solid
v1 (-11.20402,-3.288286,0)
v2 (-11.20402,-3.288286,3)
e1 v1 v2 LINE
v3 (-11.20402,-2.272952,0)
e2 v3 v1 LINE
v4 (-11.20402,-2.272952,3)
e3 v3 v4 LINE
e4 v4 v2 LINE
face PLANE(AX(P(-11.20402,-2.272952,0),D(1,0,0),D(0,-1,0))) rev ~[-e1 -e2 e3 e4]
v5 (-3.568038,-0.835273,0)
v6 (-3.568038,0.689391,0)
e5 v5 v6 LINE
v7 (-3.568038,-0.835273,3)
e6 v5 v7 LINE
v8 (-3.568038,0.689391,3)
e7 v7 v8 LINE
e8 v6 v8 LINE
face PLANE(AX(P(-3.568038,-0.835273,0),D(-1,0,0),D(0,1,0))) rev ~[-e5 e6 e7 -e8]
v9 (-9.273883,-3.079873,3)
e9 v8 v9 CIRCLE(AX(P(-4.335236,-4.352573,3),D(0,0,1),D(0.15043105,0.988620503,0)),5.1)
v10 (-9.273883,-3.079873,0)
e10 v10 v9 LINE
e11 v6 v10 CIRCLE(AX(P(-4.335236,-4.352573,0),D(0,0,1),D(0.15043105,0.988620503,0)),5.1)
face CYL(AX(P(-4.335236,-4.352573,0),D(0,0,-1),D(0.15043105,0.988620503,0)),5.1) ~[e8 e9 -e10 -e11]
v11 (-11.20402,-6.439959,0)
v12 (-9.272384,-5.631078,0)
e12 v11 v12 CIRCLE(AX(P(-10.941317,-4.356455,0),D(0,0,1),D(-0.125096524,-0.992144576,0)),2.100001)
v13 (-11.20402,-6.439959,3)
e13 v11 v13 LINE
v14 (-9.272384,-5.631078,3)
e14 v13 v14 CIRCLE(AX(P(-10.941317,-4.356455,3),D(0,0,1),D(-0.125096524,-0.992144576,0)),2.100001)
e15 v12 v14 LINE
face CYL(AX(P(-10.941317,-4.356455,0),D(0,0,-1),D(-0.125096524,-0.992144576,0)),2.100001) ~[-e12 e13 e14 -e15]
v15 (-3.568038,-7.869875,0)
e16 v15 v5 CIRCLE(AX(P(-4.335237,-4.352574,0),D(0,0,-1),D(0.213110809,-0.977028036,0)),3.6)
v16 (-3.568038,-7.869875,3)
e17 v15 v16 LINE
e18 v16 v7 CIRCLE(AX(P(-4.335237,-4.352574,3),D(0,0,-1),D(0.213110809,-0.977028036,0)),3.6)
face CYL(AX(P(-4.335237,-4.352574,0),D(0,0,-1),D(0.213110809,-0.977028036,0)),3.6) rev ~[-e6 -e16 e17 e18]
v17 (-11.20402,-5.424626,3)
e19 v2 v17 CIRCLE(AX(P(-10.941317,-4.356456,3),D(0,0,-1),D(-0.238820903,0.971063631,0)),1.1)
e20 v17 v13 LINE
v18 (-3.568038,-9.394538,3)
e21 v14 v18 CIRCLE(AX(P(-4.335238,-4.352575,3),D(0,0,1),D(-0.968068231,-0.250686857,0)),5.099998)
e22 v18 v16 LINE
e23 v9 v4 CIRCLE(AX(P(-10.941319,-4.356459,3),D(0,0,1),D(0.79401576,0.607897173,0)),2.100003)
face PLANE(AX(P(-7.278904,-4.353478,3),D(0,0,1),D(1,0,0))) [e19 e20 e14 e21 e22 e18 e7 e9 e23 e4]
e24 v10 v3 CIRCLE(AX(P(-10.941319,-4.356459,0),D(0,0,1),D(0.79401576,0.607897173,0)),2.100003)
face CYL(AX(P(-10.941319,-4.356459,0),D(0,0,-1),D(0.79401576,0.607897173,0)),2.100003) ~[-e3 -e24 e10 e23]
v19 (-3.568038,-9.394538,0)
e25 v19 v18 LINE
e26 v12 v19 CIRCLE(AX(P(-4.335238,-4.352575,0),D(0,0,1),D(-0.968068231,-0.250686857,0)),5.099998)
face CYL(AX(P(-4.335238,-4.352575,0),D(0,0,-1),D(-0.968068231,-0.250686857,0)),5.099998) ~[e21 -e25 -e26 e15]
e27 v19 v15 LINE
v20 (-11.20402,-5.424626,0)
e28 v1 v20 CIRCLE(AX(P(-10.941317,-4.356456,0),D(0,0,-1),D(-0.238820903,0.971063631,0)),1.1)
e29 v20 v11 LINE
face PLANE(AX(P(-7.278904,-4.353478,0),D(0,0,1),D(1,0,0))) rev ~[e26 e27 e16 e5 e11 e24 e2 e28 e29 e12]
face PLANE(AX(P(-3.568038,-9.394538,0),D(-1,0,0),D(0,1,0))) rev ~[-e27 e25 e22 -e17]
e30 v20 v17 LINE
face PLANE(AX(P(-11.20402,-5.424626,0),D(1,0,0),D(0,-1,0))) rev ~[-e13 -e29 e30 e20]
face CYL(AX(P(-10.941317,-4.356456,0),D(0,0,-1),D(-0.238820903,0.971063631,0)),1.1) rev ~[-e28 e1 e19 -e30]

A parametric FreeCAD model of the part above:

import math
import FreeCAD as App
import Part
import Sketcher
from FreeCAD import Vector

doc = App.newDocument("Part")
body = doc.addObject("PartDesign::Body", "Body")

# Sketch on XY plane
sketch1 = body.newObject("Sketcher::SketchObject", "Sketch")
sketch1.AttachmentSupport = (doc.getObject("XY_Plane"), [""])
sketch1.MapMode = "FlatFace"
sketch1.addGeometry([
    Part.ArcOfCircle(Part.Circle(Vector(-4.3, -4.4, 0), Vector(0, 0, 1), 3.6), math.radians(78), math.radians(282)),  # 0
    Part.LineSegment(Vector(-3.6, -0.8, 0), Vector(-3.6, 0.7, 0)),  # 1
    Part.ArcOfCircle(Part.Circle(Vector(-4.3, -4.4, 0), Vector(0, 0, 1), 5.1), math.radians(81), math.radians(166)),  # 2
    Part.ArcOfCircle(Part.Circle(Vector(-10.9, -4.4, 0), Vector(0, 0, 1), 2.1), math.radians(37), math.radians(97)),  # 3
    Part.LineSegment(Vector(-11.2, -2.3, 0), Vector(-11.2, -3.3, 0)),  # 4
    Part.ArcOfCircle(Part.Circle(Vector(-10.9, -4.4, 0), Vector(0, 0, 1), 1.1), math.radians(-104), math.radians(104)),  # 5
    Part.LineSegment(Vector(-11.2, -5.4, 0), Vector(-11.2, -6.4, 0)),  # 6
    Part.ArcOfCircle(Part.Circle(Vector(-10.9, -4.4, 0), Vector(0, 0, 1), 2.1), math.radians(-97), math.radians(-37)),  # 7
    Part.ArcOfCircle(Part.Circle(Vector(-4.3, -4.4, 0), Vector(0, 0, 1), 5.1), math.radians(-165), math.radians(-81)),  # 8
    Part.LineSegment(Vector(-3.6, -9.4, 0), Vector(-3.6, -7.9, 0)),  # 9
], False)
sketch1.addConstraint([
    Sketcher.Constraint("Coincident", 0, 1, 1, 1),
    Sketcher.Constraint("Coincident", 1, 2, 2, 1),
    Sketcher.Constraint("Coincident", 2, 2, 3, 1),
    Sketcher.Constraint("Coincident", 3, 2, 4, 1),
    Sketcher.Constraint("Coincident", 4, 2, 5, 2),
    Sketcher.Constraint("Coincident", 5, 1, 6, 1),
    Sketcher.Constraint("Coincident", 6, 2, 7, 1),
    Sketcher.Constraint("Coincident", 7, 2, 8, 1),
    Sketcher.Constraint("Coincident", 8, 2, 9, 1),
    Sketcher.Constraint("Coincident", 9, 2, 0, 2),
    Sketcher.Constraint("Vertical", 1),
    Sketcher.Constraint("Vertical", 4),
    Sketcher.Constraint("Vertical", 6),
    Sketcher.Constraint("Vertical", 9),
    Sketcher.Constraint("Coincident", 2, 3, 0, 3),
    Sketcher.Constraint("Coincident", 5, 3, 3, 3),
    Sketcher.Constraint("Coincident", 7, 3, 3, 3),
    Sketcher.Constraint("Coincident", 8, 3, 0, 3),
    Sketcher.Constraint("Equal", 2, 8),
    Sketcher.Constraint("Vertical", 4, 2, 5, 1),
    Sketcher.Constraint("Vertical", 1, 2, 8, 2),
    Sketcher.Constraint("Equal", 4, 6),
    Sketcher.Constraint("Radius", 0, 3.6),
    Sketcher.Constraint("Radius", 2, 5.1),
    Sketcher.Constraint("Radius", 5, 1.1),
    Sketcher.Constraint("Radius", 7, 2.100001),
    Sketcher.Constraint("DistanceX", 2, 3, 0, 1, 0.767198),
    Sketcher.Constraint("DistanceY", 0, 3, 2, 2, 1.272701),
    Sketcher.Constraint("DistanceX", 3, 2, 3, 3, 0.262701),
    Sketcher.Constraint("DistanceX", 3, 3, -1, 1, 10.941319),
    Sketcher.Constraint("DistanceY", 3, 3, -1, 1, 4.356459),
    Sketcher.Constraint("DistanceX", 0, 1, -1, 1, 3.568038),
])
pad1 = body.newObject("PartDesign::Pad", "Pad")
pad1.Profile = sketch1
pad1.Length = 3

doc.recompute()
